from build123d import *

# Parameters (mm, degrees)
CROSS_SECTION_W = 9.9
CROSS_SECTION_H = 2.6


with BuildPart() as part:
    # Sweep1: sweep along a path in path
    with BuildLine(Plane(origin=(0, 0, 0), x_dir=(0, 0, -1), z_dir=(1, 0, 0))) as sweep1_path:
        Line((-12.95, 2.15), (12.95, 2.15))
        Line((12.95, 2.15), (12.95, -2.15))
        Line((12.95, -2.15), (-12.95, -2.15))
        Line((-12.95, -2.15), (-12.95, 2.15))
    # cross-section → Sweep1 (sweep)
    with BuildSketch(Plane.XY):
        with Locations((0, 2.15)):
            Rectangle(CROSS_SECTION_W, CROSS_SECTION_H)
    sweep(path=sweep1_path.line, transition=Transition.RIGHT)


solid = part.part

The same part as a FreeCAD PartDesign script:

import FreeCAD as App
import Part
import Sketcher
Q = App.Units.Quantity


def add_polygon(sketch, points):
    """Adds a closed chain of lines whose ends are joined by coincident constraints."""
    first, n = sketch.GeometryCount, len(points)
    for a, b in zip(points, points[1:] + points[:1]):
        sketch.addGeometry(Part.LineSegment(App.Vector(*a, 0), App.Vector(*b, 0)), False)
    for i in range(n):
        sketch.addConstraint(Sketcher.Constraint("Coincident", first + i, 2, first + (i + 1) % n, 1))

doc = App.newDocument("Part")
params = doc.addObject("Spreadsheet::Sheet", "Params")
for row, (alias, value) in enumerate([
    ("sketch1_width", "9.9 mm"),
    ("sketch1_height", "2.6 mm"),
    ("sketch2_width", "4.3 mm"),
    ("sketch2_height", "25.9 mm"),
], start=1):
    params.set(f"A{row}", alias)
    params.set(f"B{row}", "=" + value)
    params.setAlias(f"B{row}", alias)

body = doc.addObject("PartDesign::Body", "Body")

# Sketch on XY plane
sketch1 = body.newObject("Sketcher::SketchObject", "Sketch")
sketch1.AttachmentSupport = (doc.getObject("XY_Plane"), [""])
sketch1.MapMode = "FlatFace"
add_polygon(sketch1, [(-4.95, 3.45), (-4.95, 0.85), (4.95, 0.85), (4.95, 3.45)])  # lines 0-3
sketch1.addConstraint([
    Sketcher.Constraint("Vertical", 0),
    Sketcher.Constraint("Horizontal", 1),
    Sketcher.Constraint("Vertical", 2),
    Sketcher.Constraint("Horizontal", 3),
    Sketcher.Constraint("DistanceX", 1, 1, 1, 2, Q("9.9 mm")),
    Sketcher.Constraint("DistanceY", 0, 2, 0, 1, Q("2.6 mm")),
    Sketcher.Constraint("DistanceX", 0, 2, -1, 1, Q("4.95 mm")),
    Sketcher.Constraint("DistanceY", -1, 1, 0, 2, Q("0.85 mm")),
])
sketch1.setExpression("Constraints[8]", "Params.sketch1_width")
sketch1.setExpression("Constraints[9]", "Params.sketch1_height")

# Sketch on YZ plane
sketch2 = body.newObject("Sketcher::SketchObject", "Sketch001")
sketch2.AttachmentSupport = (doc.getObject("YZ_Plane"), [""])
sketch2.MapMode = "FlatFace"
add_polygon(sketch2, [(2.15, 12.95), (2.15, -12.95), (-2.15, -12.95), (-2.15, 12.95)])  # lines 0-3
sketch2.addConstraint([
    Sketcher.Constraint("Vertical", 0),
    Sketcher.Constraint("Horizontal", 1),
    Sketcher.Constraint("Vertical", 2),
    Sketcher.Constraint("Horizontal", 3),
    Sketcher.Constraint("Symmetric", 0, 2, 2, 2, -1, 1),
    Sketcher.Constraint("DistanceX", 1, 2, 1, 1, Q("4.3 mm")),
    Sketcher.Constraint("DistanceY", 0, 2, 0, 1, Q("25.9 mm")),
])
sketch2.setExpression("Constraints[9]", "Params.sketch2_width")
sketch2.setExpression("Constraints[10]", "Params.sketch2_height")
doc.recompute()

additivepipe = body.newObject("PartDesign::AdditivePipe", "AdditivePipe")
additivepipe.Profile = sketch1
additivepipe.Spine = (sketch2, ["Edge1", "Edge2", "Edge3", "Edge4"])
additivepipe.Transition = "Right corner"

doc.recompute()
